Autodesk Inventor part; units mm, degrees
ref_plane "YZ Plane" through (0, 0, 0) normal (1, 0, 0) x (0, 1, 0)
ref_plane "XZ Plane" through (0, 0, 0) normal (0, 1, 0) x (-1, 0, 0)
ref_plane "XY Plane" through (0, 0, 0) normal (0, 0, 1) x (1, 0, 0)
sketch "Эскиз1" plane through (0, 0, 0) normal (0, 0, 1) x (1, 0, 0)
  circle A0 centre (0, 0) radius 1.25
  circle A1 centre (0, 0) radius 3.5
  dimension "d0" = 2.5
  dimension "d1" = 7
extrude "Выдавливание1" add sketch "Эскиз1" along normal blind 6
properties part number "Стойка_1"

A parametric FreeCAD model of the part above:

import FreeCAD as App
import Part
import Sketcher

doc = App.newDocument("Part")
params = doc.addObject("Spreadsheet::Sheet", "Params")
for row, (alias, value) in enumerate([
    ("sketch1_diameter", "7 mm"),
    ("sketch1_diameter2", "2.5 mm"),
    ("pad1_length", "6 mm"),
], start=1):
    params.set(f"A{row}", alias)
    params.set(f"B{row}", "=" + value)
    params.setAlias(f"B{row}", alias)

body = doc.addObject("PartDesign::Body", "Body")

sketch1 = doc.addObject("Sketcher::SketchObject", "Sketch")
body.addObject(sketch1)
sketch1.AttachmentSupport = (doc.XY_Plane, [""])
sketch1.MapMode = "FlatFace"
sketch1.addGeometry(Part.Circle(App.Vector(0, 0, 0), App.Vector(0, 0, 1), 3.5), False)
sketch1.addGeometry(Part.Circle(App.Vector(0, 0, 0), App.Vector(0, 0, 1), 1.2), False)
sketch1.addConstraint(Sketcher.Constraint("Coincident", 0, 3, -1, 1))
sketch1.addConstraint(Sketcher.Constraint("Coincident", 1, 3, -1, 1))
sketch1.addConstraint(Sketcher.Constraint("Diameter", 0, 7.0))
sketch1.addConstraint(Sketcher.Constraint("Diameter", 1, 2.5))
sketch1.setExpression("Constraints[2]", "Params.sketch1_diameter")
sketch1.setExpression("Constraints[3]", "Params.sketch1_diameter2")
pad1 = doc.addObject("PartDesign::Pad", "Pad")
body.addObject(pad1)
pad1.Profile = sketch1
pad1.setExpression("Length", "Params.pad1_length")

doc.recompute()
